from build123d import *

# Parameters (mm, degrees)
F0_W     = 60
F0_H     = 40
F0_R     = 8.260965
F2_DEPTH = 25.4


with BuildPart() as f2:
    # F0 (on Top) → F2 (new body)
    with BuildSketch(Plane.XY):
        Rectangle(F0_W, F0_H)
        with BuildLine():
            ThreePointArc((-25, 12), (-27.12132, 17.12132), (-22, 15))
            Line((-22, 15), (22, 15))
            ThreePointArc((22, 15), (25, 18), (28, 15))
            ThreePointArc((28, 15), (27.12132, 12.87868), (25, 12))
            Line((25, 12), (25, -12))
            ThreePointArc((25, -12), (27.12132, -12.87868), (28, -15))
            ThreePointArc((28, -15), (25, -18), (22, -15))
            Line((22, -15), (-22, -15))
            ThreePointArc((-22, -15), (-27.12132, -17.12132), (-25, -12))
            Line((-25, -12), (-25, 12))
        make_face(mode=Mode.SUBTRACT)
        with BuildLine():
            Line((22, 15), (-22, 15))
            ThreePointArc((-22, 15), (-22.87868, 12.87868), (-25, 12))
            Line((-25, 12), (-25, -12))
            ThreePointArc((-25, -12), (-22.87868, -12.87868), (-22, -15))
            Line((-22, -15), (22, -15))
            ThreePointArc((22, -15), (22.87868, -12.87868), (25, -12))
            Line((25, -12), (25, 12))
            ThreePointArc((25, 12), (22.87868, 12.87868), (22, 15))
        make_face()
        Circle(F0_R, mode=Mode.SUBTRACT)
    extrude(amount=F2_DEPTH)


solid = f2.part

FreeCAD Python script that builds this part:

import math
import FreeCAD as App
import Part
import Sketcher

V = App.Vector


def add_polygon(sketch, points):
    """Adds a closed chain of lines whose ends are joined by coincident constraints."""
    first, n = sketch.GeometryCount, len(points)
    for a, b in zip(points, points[1:] + points[:1]):
        sketch.addGeometry(Part.LineSegment(App.Vector(*a, 0), App.Vector(*b, 0)), False)
    for i in range(n):
        sketch.addConstraint(Sketcher.Constraint("Coincident", first + i, 2, first + (i + 1) % n, 1))

doc = App.newDocument("Part")
body = doc.addObject("PartDesign::Body", "Body")

sketch1 = body.newObject("Sketcher::SketchObject", "Sketch")
sketch1.AttachmentSupport = (doc.getObject("XY_Plane"), [""])
sketch1.MapMode = "FlatFace"
add_polygon(sketch1, [(-30, 20), (-30, -20), (30, -20), (30, 20)])
sketch1.addGeometry(Part.ArcOfCircle(Part.Circle(V(-25, -15, 0), V(0, 0, 1), 3), math.radians(90.000004), math.radians(359.999996)), False)
sketch1.addGeometry(Part.ArcOfCircle(Part.Circle(V(-25.000001, -15.000001, 0), V(0, 0, 1), 3.000001), math.radians(0.000022), math.radians(89.999978)), False)
sketch1.addGeometry(Part.ArcOfCircle(Part.Circle(V(25, -15, 0), V(0, 0, 1), 3), math.radians(180), math.radians(360)), False)
sketch1.addGeometry(Part.ArcOfCircle(Part.Circle(V(25.000001, -15.000001, 0), V(0, 0, 1), 3.000001), math.radians(90.000022), math.radians(179.999978)), False)
sketch1.addGeometry(Part.ArcOfCircle(Part.Circle(V(24.999999, -15.000001, 0), V(0, 0, 1), 3.000001), math.radians(0.000022), math.radians(89.999978)), False)
sketch1.addGeometry(Part.Circle(V(0, 0, 0), V(0, 0, 1), 8.260965), False)
sketch1.addGeometry(Part.ArcOfCircle(Part.Circle(V(-25, 15, 0), V(0, 0, 1), 3), math.radians(0.000004), math.radians(269.999996)), False)
sketch1.addGeometry(Part.ArcOfCircle(Part.Circle(V(-25.000001, 15.000001, 0), V(0, 0, 1), 3.000001), math.radians(-89.999978), math.radians(-0.000022)), False)
sketch1.addGeometry(Part.ArcOfCircle(Part.Circle(V(24.999999, 15.000001, 0), V(0, 0, 1), 3.000001), math.radians(-89.999978), math.radians(-0.000022)), False)
sketch1.addGeometry(Part.ArcOfCircle(Part.Circle(V(25.000001, 15.000001, 0), V(0, 0, 1), 3.000001), math.radians(-179.999978), math.radians(-90.000022)), False)
sketch1.addGeometry(Part.ArcOfCircle(Part.Circle(V(25, 15, 0), V(0, 0, 1), 3), math.radians(0), math.radians(180)), False)
sketch1.addConstraint(Sketcher.Constraint("Tangent", 4, 1, 5, 2))
sketch1.addConstraint(Sketcher.Constraint("Coincident", 5, 1, 4, 2))
sketch1.addConstraint(Sketcher.Constraint("Tangent", 6, 1, 7, 2))
sketch1.addConstraint(Sketcher.Constraint("Tangent", 7, 1, 8, 2))
sketch1.addConstraint(Sketcher.Constraint("Tangent", 8, 1, 6, 2))
sketch1.addConstraint(Sketcher.Constraint("Tangent", 10, 1, 11, 2))
sketch1.addConstraint(Sketcher.Constraint("Coincident", 11, 1, 10, 2))
sketch1.addConstraint(Sketcher.Constraint("Tangent", 12, 1, 13, 2))
sketch1.addConstraint(Sketcher.Constraint("Tangent", 13, 1, 14, 2))
sketch1.addConstraint(Sketcher.Constraint("Tangent", 14, 1, 12, 2))
sketch1.addConstraint(Sketcher.Constraint("Vertical", 0))
sketch1.addConstraint(Sketcher.Constraint("Horizontal", 1))
sketch1.addConstraint(Sketcher.Constraint("Vertical", 2))
sketch1.addConstraint(Sketcher.Constraint("Horizontal", 3))
sketch1.addConstraint(Sketcher.Constraint("Coincident", 9, 3, -1, 1))
sketch1.addConstraint(Sketcher.Constraint("Equal", 5, 6))
sketch1.addConstraint(Sketcher.Constraint("Equal", 8, 10))
sketch1.addConstraint(Sketcher.Constraint("Equal", 11, 12))
sketch1.addConstraint(Sketcher.Constraint("Symmetric", 6, 3, 10, 3, -1, 1))
sketch1.addConstraint(Sketcher.Constraint("Symmetric", 4, 3, 12, 3, -1, 1))
sketch1.addConstraint(Sketcher.Constraint("Symmetric", 0, 2, 2, 2, -1, 1))
sketch1.addConstraint(Sketcher.Constraint("Symmetric", 4, 3, 6, 3, -2))
sketch1.addConstraint(Sketcher.Constraint("Horizontal", 8, 3, 5, 1))
sketch1.addConstraint(Sketcher.Constraint("Horizontal", 5, 1, 6, 1))
sketch1.addConstraint(Sketcher.Constraint("Horizontal", 6, 1, 8, 1))
sketch1.addConstraint(Sketcher.Constraint("Horizontal", 14, 3, 10, 1))
sketch1.addConstraint(Sketcher.Constraint("Horizontal", 10, 1, 13, 1))
sketch1.addConstraint(Sketcher.Constraint("Horizontal", 13, 1, 14, 1))
sketch1.addConstraint(Sketcher.Constraint("Vertical", 11, 3, 4, 1))
sketch1.addConstraint(Sketcher.Constraint("Vertical", 14, 3, 7, 1))
sketch1.addConstraint(Sketcher.Constraint("Vertical", 4, 1, 11, 1))
sketch1.addConstraint(Sketcher.Constraint("Vertical", 7, 1, 12, 1))
sketch1.addConstraint(Sketcher.Constraint("Radius", 4, 3.0))
sketch1.addConstraint(Sketcher.Constraint("DistanceX", 1, 1, 1, 2, 60.0))
sketch1.addConstraint(Sketcher.Constraint("DistanceY", 0, 2, 0, 1, 40.0))
sketch1.addConstraint(Sketcher.Constraint("DistanceX", 4, 3, -1, 1, 25.0))
sketch1.addConstraint(Sketcher.Constraint("DistanceY", 4, 3, -1, 1, 15.0))
sketch1.addConstraint(Sketcher.Constraint("Diameter", 9, 16.52193))
pad1 = body.newObject("PartDesign::Pad", "Pad")
pad1.Profile = sketch1
pad1.Length = 25.4

doc.recompute()
